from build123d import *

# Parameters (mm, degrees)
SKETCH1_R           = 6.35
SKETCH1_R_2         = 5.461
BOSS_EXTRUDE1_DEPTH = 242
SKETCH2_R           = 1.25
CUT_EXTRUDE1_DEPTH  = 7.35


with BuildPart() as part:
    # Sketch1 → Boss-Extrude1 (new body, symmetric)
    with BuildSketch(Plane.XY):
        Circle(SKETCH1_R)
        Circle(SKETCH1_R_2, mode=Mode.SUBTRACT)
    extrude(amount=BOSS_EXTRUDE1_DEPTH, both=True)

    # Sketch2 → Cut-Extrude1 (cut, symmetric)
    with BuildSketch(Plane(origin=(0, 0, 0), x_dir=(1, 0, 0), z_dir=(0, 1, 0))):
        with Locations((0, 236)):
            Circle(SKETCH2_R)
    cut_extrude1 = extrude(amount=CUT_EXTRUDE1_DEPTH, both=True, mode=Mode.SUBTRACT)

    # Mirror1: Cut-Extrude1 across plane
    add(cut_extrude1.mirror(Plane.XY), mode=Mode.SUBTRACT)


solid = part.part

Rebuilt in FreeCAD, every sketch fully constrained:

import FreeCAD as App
import Part
import Sketcher
Q = App.Units.Quantity

doc = App.newDocument("Part")
body = doc.addObject("PartDesign::Body", "Body")

sketch1 = body.newObject("Sketcher::SketchObject", "Sketch")
sketch1.AttachmentSupport = (doc.getObject("XY_Plane"), [""])
sketch1.MapMode = "FlatFace"
sketch1.addGeometry(Part.Circle(App.Vector(0, 0, 0), App.Vector(0, 0, 1), 6), False)
sketch1.addGeometry(Part.Circle(App.Vector(0, 0, 0), App.Vector(0, 0, 1), 5), False)
sketch1.addConstraint(Sketcher.Constraint("Coincident", 0, 3, -1, 1))
sketch1.addConstraint(Sketcher.Constraint("Coincident", 1, 3, -1, 1))
sketch1.addConstraint(Sketcher.Constraint("Diameter", 0, Q("12.7 mm")))
sketch1.addConstraint(Sketcher.Constraint("Diameter", 1, Q("10.922 mm")))
pad1 = body.newObject("PartDesign::Pad", "Pad")
pad1.Profile = sketch1
pad1.Length = 484
pad1.Midplane = True

sketch2 = body.newObject("Sketcher::SketchObject", "Sketch001")
sketch2.AttachmentSupport = (doc.getObject("XZ_Plane"), [""])
sketch2.MapMode = "FlatFace"
sketch2.addGeometry(Part.Circle(App.Vector(0, -236, 0), App.Vector(0, 0, 1), 1.2), False)
sketch2.addConstraint(Sketcher.Constraint("PointOnObject", 0, 3, -2))
sketch2.addConstraint(Sketcher.Constraint("Diameter", 0, Q("2.5 mm")))
sketch2.addConstraint(Sketcher.Constraint("DistanceY", 0, 3, -1, 1, Q("236 mm")))
pocket1 = body.newObject("PartDesign::Pocket", "Pocket")
pocket1.Profile = sketch2
pocket1.Length = 14.7
pocket1.Midplane = True
doc.recompute()

mirrored = body.newObject("PartDesign::Mirrored", "Mirrored")
mirrored.Originals = [pocket1]
mirrored.MirrorPlane = (doc.getObject("XY_Plane"), [""])
body.Tip = mirrored

doc.recompute()
